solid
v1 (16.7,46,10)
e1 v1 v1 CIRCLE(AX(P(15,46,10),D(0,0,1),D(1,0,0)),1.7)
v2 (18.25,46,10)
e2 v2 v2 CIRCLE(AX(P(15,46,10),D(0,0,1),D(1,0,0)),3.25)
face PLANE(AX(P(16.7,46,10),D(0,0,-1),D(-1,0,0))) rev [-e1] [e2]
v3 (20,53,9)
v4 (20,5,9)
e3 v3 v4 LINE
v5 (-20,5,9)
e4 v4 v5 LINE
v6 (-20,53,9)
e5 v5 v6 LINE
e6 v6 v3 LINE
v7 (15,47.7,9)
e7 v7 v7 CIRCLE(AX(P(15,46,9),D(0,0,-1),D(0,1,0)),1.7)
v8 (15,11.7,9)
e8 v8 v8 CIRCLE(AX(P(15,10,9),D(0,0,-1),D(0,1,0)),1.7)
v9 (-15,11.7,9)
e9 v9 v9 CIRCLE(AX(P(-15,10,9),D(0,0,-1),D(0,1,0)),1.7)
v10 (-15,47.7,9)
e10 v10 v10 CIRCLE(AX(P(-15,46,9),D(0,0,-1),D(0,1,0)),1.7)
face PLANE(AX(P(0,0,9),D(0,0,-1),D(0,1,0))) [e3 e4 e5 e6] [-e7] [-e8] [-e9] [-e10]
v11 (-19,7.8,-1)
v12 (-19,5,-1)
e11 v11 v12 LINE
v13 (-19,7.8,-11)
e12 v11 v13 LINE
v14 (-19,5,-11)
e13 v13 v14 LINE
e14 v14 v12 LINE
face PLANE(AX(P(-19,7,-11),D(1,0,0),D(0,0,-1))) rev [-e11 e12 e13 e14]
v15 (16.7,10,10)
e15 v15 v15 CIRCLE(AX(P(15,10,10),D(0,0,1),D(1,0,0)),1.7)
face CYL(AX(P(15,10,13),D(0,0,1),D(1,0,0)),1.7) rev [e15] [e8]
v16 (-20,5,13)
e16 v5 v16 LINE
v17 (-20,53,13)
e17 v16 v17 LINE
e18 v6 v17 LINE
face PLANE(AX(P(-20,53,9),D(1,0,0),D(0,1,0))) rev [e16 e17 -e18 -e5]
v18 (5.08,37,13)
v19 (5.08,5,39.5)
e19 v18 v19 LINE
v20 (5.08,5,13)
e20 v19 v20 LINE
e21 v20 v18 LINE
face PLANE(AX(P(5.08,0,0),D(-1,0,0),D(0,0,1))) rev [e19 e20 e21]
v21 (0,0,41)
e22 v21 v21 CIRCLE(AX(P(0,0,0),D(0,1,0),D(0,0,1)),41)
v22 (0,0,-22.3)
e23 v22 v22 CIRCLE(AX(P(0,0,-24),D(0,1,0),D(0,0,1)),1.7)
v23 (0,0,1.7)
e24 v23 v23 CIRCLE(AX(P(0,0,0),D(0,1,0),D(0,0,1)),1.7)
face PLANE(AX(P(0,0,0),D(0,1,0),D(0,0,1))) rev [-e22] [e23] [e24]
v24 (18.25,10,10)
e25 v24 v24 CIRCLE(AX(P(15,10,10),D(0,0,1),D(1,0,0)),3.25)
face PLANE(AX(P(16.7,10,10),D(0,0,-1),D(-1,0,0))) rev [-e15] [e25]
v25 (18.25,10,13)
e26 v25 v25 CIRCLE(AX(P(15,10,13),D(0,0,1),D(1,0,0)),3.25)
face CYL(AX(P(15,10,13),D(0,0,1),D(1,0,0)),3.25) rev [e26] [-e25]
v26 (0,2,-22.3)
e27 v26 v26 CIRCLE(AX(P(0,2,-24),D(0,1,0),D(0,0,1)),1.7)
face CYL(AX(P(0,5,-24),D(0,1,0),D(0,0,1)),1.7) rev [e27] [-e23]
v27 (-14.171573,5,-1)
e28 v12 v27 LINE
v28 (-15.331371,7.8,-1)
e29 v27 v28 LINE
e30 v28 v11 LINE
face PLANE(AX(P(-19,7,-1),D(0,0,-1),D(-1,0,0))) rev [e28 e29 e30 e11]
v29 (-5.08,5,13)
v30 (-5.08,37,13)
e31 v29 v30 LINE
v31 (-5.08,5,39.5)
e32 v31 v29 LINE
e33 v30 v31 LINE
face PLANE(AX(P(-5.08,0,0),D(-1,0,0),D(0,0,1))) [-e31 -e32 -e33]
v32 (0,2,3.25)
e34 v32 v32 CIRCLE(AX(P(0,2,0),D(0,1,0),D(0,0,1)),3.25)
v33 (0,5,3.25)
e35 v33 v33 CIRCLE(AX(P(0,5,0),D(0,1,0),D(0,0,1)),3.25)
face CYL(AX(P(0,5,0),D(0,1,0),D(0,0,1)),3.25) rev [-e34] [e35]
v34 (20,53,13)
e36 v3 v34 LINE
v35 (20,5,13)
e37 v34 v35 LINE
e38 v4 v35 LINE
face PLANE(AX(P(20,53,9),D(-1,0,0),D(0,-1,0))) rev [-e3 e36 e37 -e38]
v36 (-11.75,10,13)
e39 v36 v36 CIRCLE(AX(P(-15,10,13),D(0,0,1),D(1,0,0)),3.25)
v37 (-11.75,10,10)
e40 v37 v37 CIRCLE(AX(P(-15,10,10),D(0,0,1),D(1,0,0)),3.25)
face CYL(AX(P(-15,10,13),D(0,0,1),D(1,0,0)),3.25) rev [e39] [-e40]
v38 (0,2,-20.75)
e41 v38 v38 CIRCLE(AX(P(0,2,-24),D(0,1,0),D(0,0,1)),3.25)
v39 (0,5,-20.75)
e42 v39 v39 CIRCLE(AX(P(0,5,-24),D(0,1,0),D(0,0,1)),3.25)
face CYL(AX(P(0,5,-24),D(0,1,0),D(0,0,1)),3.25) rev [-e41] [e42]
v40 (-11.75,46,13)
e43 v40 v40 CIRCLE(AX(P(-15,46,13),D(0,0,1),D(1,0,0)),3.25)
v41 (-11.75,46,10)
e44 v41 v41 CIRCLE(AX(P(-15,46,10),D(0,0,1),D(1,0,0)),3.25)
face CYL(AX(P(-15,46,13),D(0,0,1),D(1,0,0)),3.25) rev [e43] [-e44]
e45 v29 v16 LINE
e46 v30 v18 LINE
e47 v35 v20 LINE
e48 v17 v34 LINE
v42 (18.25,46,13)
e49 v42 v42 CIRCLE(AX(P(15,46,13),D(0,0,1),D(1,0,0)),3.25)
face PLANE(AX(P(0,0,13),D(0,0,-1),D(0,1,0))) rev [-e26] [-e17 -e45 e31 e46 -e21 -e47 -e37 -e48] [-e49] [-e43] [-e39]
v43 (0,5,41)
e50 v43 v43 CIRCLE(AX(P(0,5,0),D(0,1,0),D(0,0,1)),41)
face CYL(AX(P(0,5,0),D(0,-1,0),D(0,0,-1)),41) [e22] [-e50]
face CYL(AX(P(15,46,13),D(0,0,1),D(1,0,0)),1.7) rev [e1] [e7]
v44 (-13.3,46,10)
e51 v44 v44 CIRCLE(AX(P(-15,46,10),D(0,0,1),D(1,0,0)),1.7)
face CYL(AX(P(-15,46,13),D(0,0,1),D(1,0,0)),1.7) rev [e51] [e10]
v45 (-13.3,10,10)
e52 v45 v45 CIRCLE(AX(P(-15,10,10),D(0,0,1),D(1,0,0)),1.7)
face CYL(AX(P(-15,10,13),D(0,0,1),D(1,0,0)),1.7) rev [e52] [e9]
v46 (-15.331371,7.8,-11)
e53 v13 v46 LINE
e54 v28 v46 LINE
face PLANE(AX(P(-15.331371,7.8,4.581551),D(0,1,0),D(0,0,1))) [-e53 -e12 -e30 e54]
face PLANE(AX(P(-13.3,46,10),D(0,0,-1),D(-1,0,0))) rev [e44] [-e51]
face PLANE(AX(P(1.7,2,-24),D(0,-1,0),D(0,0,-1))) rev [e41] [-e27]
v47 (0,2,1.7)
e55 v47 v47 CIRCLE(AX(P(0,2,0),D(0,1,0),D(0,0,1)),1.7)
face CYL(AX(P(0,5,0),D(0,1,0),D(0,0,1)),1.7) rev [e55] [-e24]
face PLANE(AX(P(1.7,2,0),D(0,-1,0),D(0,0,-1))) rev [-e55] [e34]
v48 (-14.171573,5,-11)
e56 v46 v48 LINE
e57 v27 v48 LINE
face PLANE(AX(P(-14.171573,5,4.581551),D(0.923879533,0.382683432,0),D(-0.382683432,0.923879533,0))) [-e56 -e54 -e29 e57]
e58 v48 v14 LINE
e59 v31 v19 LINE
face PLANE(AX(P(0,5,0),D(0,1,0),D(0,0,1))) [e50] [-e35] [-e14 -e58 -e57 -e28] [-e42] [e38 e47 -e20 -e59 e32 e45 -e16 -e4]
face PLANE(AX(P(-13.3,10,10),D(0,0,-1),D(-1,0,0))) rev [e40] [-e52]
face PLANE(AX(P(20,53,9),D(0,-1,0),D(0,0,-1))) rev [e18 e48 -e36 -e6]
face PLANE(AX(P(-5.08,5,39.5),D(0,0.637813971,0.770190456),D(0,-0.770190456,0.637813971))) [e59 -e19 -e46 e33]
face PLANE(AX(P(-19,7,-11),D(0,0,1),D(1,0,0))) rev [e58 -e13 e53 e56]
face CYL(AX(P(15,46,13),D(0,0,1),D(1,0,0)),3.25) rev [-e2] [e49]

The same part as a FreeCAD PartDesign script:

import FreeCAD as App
import Part
import Sketcher

V = App.Vector
Q = App.Units.Quantity

doc = App.newDocument("Part")
body = doc.addObject("PartDesign::Body", "Body")

sketch1 = body.newObject("Sketcher::SketchObject", "Sketch")
sketch1.AttachmentSupport = (doc.getObject("XZ_Plane"), [""])
sketch1.MapMode = "FlatFace"
sketch1.addGeometry(Part.Circle(V(0, 0, 0), V(0, 0, 1), 41), False)
sketch1.addConstraint(Sketcher.Constraint("Coincident", 0, 3, -1, 1))
sketch1.addConstraint(Sketcher.Constraint("Diameter", 0, 82.0))
pad1 = body.newObject("PartDesign::Pad", "Pad")
pad1.Profile = sketch1
pad1.Length = 5
pad1.Reversed = True

sketch2 = body.newObject("Sketcher::SketchObject", "Sketch001")
sketch2.AttachmentSupport = (doc.getObject("YZ_Plane"), [""])
sketch2.MapMode = "FlatFace"
sketch2.addGeometry(Part.LineSegment(V(5, 40, 0), V(5, 13, 0)), False)
sketch2.addGeometry(Part.LineSegment(V(5, 13, 0), V(37, 13, 0)), False)
sketch2.addGeometry(Part.LineSegment(V(37, 13, 0), V(5, 40, 0)), False)
sketch2.addConstraint(Sketcher.Constraint("Coincident", 0, 2, 1, 1))
sketch2.addConstraint(Sketcher.Constraint("Coincident", 1, 2, 2, 1))
sketch2.addConstraint(Sketcher.Constraint("Coincident", 2, 2, 0, 1))
sketch2.addConstraint(Sketcher.Constraint("Vertical", 0))
sketch2.addConstraint(Sketcher.Constraint("Horizontal", 1))
sketch2.addConstraint(Sketcher.Constraint("DistanceX", 1, 1, 1, 2, 32.0))
sketch2.addConstraint(Sketcher.Constraint("DistanceY", 0, 2, 0, 1, 26.5))
sketch2.addConstraint(Sketcher.Constraint("DistanceX", -1, 1, 0, 2, 5.0))
sketch2.addConstraint(Sketcher.Constraint("DistanceY", -1, 1, 0, 2, 13.0))
pad2 = body.newObject("PartDesign::Pad", "Pad001")
pad2.Profile = sketch2
pad2.Type = "TwoLengths"
pad2.Length = 5.08
pad2.Length2 = 5.08

sketch3 = body.newObject("Sketcher::SketchObject", "Sketch002")
sketch3.AttachmentSupport = (doc.getObject("XY_Plane"), [""])
sketch3.MapMode = "FlatFace"
sketch3.AttachmentOffset = App.Placement(V(0, 0, 13), App.Rotation())
sketch3.addGeometry(Part.LineSegment(V(20, 53, 0), V(20, 5, 0)), False)
sketch3.addGeometry(Part.LineSegment(V(20, 5, 0), V(-20, 5, 0)), False)
sketch3.addGeometry(Part.LineSegment(V(-20, 5, 0), V(-20, 53, 0)), False)
sketch3.addGeometry(Part.LineSegment(V(-20, 53, 0), V(20, 53, 0)), False)
sketch3.addConstraint(Sketcher.Constraint("Coincident", 0, 2, 1, 1))
sketch3.addConstraint(Sketcher.Constraint("Coincident", 1, 2, 2, 1))
sketch3.addConstraint(Sketcher.Constraint("Coincident", 2, 2, 3, 1))
sketch3.addConstraint(Sketcher.Constraint("Coincident", 3, 2, 0, 1))
sketch3.addConstraint(Sketcher.Constraint("Vertical", 0))
sketch3.addConstraint(Sketcher.Constraint("Horizontal", 1))
sketch3.addConstraint(Sketcher.Constraint("Vertical", 2))
sketch3.addConstraint(Sketcher.Constraint("Horizontal", 3))
sketch3.addConstraint(Sketcher.Constraint("DistanceX", 1, 2, 1, 1, 40.0))
sketch3.addConstraint(Sketcher.Constraint("DistanceY", 0, 2, 0, 1, 48.0))
sketch3.addConstraint(Sketcher.Constraint("DistanceX", -1, 1, 0, 2, 20.0))
sketch3.addConstraint(Sketcher.Constraint("DistanceY", -1, 1, 0, 2, 5.0))
pad3 = body.newObject("PartDesign::Pad", "Pad002")
pad3.Profile = sketch3
pad3.Length = 4
pad3.Reversed = True

sketch4 = body.newObject("Sketcher::SketchObject", "Sketch003")
sketch4.AttachmentSupport = (doc.getObject("XZ_Plane"), [""])
sketch4.MapMode = "FlatFace"
sketch4.AttachmentOffset = App.Placement(V(0, 0, -5), App.Rotation())
sketch4.addGeometry(Part.Circle(V(0, 0, 0), V(0, 0, 1), 1.7), False)
sketch4.addGeometry(Part.Circle(V(0, -24, 0), V(0, 0, 1), 1.7), False)
sketch4.addConstraint(Sketcher.Constraint("Coincident", 0, 3, -1, 1))
sketch4.addConstraint(Sketcher.Constraint("Equal", 0, 1))
sketch4.addConstraint(Sketcher.Constraint("PointOnObject", 1, 3, -2))
sketch4.addConstraint(Sketcher.Constraint("Diameter", 0, 3.4))
sketch4.addConstraint(Sketcher.Constraint("DistanceY", 1, 3, -1, 1, 24.0))
doc.recompute()
hole = body.newObject("PartDesign::Hole", "Hole")
hole.Profile = sketch4
hole.ThreadType = "None"
hole.Diameter = 3.4
hole.DepthType = "Dimension"
hole.Depth = 5.5
hole.DrillPoint = "Angled"
hole.DrillPointAngle = 118
hole.HoleCutType = "Counterbore"
hole.HoleCutDiameter = 6.5
hole.HoleCutDepth = 3
hole.Reversed = True

sketch5 = body.newObject("Sketcher::SketchObject", "Sketch004")
sketch5.AttachmentSupport = (doc.getObject("XZ_Plane"), [""])
sketch5.MapMode = "FlatFace"
sketch5.AttachmentOffset = App.Placement(V(0, 0, -5), App.Rotation())
sketch5.addGeometry(Part.LineSegment(V(-19, -11, 0), V(-19, -1, 0)), False)
sketch5.addGeometry(Part.LineSegment(V(-19, -1, 0), V(-15, -1, 0)), False)
sketch5.addGeometry(Part.LineSegment(V(-15, -1, 0), V(-15, -11, 0)), False)
sketch5.addGeometry(Part.LineSegment(V(-15, -11, 0), V(-19, -11, 0)), False)
sketch5.addConstraint(Sketcher.Constraint("Coincident", 0, 2, 1, 1))
sketch5.addConstraint(Sketcher.Constraint("Coincident", 1, 2, 2, 1))
sketch5.addConstraint(Sketcher.Constraint("Coincident", 2, 2, 3, 1))
sketch5.addConstraint(Sketcher.Constraint("Coincident", 3, 2, 0, 1))
sketch5.addConstraint(Sketcher.Constraint("Vertical", 0))
sketch5.addConstraint(Sketcher.Constraint("Horizontal", 1))
sketch5.addConstraint(Sketcher.Constraint("Vertical", 2))
sketch5.addConstraint(Sketcher.Constraint("Horizontal", 3))
sketch5.addConstraint(Sketcher.Constraint("DistanceX", 1, 1, 1, 2, 4.0))
sketch5.addConstraint(Sketcher.Constraint("DistanceY", 0, 1, 0, 2, 10.0))
sketch5.addConstraint(Sketcher.Constraint("DistanceX", 0, 2, -1, 1, 19.0))
sketch5.addConstraint(Sketcher.Constraint("DistanceY", 0, 2, -1, 1, 1.0))
pad4 = body.newObject("PartDesign::Pad", "Pad003")
pad4.Profile = sketch5
pad4.Length = 2
pad4.Reversed = True

sketch6 = body.newObject("Sketcher::SketchObject", "Sketch005")
sketch6.AttachmentSupport = (doc.getObject("XY_Plane"), [""])
sketch6.MapMode = "FlatFace"
sketch6.AttachmentOffset = App.Placement(V(0, 0, -11), App.Rotation())
sketch6.addGeometry(Part.LineSegment(V(-15.3, 7.8, 0), V(-14.2, 5, 0)), False)
sketch6.addGeometry(Part.LineSegment(V(-14.2, 5, 0), V(-19, 5, 0)), False)
sketch6.addGeometry(Part.LineSegment(V(-19, 5, 0), V(-19, 7.8, 0)), False)
sketch6.addGeometry(Part.LineSegment(V(-19, 7.8, 0), V(-15.3, 7.8, 0)), False)
sketch6.addConstraint(Sketcher.Constraint("Coincident", 0, 2, 1, 1))
sketch6.addConstraint(Sketcher.Constraint("Coincident", 1, 2, 2, 1))
sketch6.addConstraint(Sketcher.Constraint("Coincident", 2, 2, 3, 1))
sketch6.addConstraint(Sketcher.Constraint("Coincident", 3, 2, 0, 1))
sketch6.addConstraint(Sketcher.Constraint("Horizontal", 1))
sketch6.addConstraint(Sketcher.Constraint("Vertical", 2))
sketch6.addConstraint(Sketcher.Constraint("Horizontal", 3))
sketch6.addConstraint(Sketcher.Constraint("DistanceY", 2, 1, 2, 2, 2.8))
sketch6.addConstraint(Sketcher.Constraint("DistanceY", -1, 1, 0, 2, 5.0))
sketch6.addConstraint(Sketcher.Constraint("DistanceX", 1, 2, -1, 1, 19.0))
sketch6.addConstraint(Sketcher.Constraint("Angle", 0, Q("-67.5 deg")))
sketch6.addConstraint(Sketcher.Constraint("DistanceX", 3, 1, 3, 2, 3.668629))
pad5 = body.newObject("PartDesign::Pad", "Pad004")
pad5.Profile = sketch6
pad5.Length = 10

sketch7 = body.newObject("Sketcher::SketchObject", "Sketch006")
sketch7.AttachmentSupport = (doc.getObject("XY_Plane"), [""])
sketch7.MapMode = "FlatFace"
sketch7.AttachmentOffset = App.Placement(V(0, 0, 13), App.Rotation())
sketch7.addGeometry(Part.Circle(V(15, 10, 0), V(0, 0, 1), 1.7), False)
sketch7.addGeometry(Part.Circle(V(-15, 10, 0), V(0, 0, 1), 1.7), False)
sketch7.addGeometry(Part.Circle(V(-15, 46, 0), V(0, 0, 1), 1.7), False)
sketch7.addGeometry(Part.Circle(V(15, 46, 0), V(0, 0, 1), 1.7), False)
sketch7.addConstraint(Sketcher.Constraint("Equal", 0, 1))
sketch7.addConstraint(Sketcher.Constraint("Equal", 1, 2))
sketch7.addConstraint(Sketcher.Constraint("Equal", 2, 3))
sketch7.addConstraint(Sketcher.Constraint("Symmetric", 0, 3, 1, 3, -2))
sketch7.addConstraint(Sketcher.Constraint("Symmetric", 2, 3, 3, 3, -2))
sketch7.addConstraint(Sketcher.Constraint("Vertical", 1, 3, 2, 3))
sketch7.addConstraint(Sketcher.Constraint("Diameter", 0, 3.4))
sketch7.addConstraint(Sketcher.Constraint("DistanceX", -1, 1, 0, 3, 15.0))
sketch7.addConstraint(Sketcher.Constraint("DistanceY", -1, 1, 0, 3, 10.0))
sketch7.addConstraint(Sketcher.Constraint("DistanceY", -1, 1, 2, 3, 46.0))
doc.recompute()
hole2 = body.newObject("PartDesign::Hole", "Hole001")
hole2.Profile = sketch7
hole2.ThreadType = "None"
hole2.Diameter = 3.4
hole2.DepthType = "Dimension"
hole2.Depth = 5.5
hole2.DrillPoint = "Angled"
hole2.DrillPointAngle = 118
hole2.HoleCutType = "Counterbore"
hole2.HoleCutDiameter = 6.5
hole2.HoleCutDepth = 3

doc.recompute()
